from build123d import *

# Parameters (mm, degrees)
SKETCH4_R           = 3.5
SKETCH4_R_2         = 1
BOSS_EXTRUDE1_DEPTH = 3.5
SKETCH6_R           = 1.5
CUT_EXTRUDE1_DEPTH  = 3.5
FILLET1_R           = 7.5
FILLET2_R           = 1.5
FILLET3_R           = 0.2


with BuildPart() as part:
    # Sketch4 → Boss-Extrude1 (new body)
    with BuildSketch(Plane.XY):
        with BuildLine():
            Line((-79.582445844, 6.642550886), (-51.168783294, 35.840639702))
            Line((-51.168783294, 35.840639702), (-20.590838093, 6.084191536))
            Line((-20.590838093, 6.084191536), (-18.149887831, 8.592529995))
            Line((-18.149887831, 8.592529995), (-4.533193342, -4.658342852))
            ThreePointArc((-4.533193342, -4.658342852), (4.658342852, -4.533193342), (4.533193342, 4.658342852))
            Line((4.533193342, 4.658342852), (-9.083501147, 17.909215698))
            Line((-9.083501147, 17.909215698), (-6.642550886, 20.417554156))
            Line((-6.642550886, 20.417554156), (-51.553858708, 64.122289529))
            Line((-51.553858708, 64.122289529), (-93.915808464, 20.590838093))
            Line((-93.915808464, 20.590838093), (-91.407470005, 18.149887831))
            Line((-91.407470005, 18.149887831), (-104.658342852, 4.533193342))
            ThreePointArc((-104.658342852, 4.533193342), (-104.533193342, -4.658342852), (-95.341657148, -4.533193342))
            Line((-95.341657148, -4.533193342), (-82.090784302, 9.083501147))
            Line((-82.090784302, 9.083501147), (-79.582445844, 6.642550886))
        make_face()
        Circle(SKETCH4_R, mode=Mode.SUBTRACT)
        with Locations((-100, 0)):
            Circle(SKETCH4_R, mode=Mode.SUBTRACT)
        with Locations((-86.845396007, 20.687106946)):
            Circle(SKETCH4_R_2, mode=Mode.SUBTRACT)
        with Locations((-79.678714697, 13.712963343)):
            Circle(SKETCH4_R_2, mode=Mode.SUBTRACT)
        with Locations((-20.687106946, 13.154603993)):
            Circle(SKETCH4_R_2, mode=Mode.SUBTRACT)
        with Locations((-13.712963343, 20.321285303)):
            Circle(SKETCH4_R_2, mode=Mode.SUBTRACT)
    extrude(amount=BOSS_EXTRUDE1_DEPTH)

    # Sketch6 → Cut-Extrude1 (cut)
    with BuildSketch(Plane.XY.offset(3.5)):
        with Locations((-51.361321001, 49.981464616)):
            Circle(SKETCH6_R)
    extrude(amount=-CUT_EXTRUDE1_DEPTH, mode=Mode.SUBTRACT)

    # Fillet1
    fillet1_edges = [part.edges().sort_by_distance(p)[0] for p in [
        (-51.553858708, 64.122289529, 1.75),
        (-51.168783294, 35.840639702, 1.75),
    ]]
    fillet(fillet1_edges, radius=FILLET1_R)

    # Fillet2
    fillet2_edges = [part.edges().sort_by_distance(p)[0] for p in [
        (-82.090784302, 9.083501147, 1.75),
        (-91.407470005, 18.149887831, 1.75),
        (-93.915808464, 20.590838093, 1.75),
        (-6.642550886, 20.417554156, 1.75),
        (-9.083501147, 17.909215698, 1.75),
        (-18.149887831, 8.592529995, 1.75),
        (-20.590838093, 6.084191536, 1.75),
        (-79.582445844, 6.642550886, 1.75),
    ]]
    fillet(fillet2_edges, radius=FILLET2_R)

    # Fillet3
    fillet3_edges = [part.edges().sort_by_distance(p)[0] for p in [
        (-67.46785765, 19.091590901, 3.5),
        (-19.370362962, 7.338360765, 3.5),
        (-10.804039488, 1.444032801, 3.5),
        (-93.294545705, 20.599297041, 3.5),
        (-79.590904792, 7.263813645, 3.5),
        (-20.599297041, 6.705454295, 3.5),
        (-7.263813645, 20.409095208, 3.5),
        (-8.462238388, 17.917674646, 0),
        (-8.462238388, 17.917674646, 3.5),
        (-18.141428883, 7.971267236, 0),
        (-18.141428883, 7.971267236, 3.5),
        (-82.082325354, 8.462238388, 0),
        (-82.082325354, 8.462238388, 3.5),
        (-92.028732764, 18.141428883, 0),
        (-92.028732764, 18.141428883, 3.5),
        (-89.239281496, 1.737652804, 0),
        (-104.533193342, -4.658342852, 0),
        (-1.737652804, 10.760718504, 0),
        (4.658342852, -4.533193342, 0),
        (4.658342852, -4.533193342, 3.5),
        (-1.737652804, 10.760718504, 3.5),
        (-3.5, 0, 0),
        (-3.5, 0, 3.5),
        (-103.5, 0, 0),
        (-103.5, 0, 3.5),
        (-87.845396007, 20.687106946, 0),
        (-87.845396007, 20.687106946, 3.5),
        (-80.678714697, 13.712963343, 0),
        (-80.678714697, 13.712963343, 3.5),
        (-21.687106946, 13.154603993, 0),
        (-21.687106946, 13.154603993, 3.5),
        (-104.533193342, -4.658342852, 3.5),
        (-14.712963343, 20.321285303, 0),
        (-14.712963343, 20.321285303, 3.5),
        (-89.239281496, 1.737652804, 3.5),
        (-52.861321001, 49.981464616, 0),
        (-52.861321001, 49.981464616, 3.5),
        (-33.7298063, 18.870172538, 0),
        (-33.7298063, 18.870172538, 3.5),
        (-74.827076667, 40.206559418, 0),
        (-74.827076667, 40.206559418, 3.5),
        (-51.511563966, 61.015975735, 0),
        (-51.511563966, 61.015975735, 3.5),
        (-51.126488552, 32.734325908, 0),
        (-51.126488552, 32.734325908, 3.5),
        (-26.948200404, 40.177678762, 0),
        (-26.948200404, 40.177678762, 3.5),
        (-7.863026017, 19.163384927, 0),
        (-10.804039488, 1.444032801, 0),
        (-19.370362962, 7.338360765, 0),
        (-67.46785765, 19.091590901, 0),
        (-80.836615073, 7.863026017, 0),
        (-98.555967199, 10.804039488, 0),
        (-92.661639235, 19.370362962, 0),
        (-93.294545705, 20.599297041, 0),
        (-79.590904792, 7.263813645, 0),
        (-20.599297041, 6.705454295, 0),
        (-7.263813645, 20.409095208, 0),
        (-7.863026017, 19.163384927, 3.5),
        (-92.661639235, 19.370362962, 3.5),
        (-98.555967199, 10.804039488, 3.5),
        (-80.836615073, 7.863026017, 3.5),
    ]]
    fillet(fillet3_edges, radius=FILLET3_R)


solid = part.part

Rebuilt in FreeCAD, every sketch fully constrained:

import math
import FreeCAD as App
import Part
import Sketcher


def edges_at(feature, points):
    """Names of the edges that pass closest to the given points."""
    edges = feature.Shape.Edges
    near = lambda p: min(range(len(edges)), key=lambda i: edges[i].distToShape(Part.Vertex(*p))[0])
    return sorted({f"Edge{near(p) + 1}" for p in points})

doc = App.newDocument("Part")
body = doc.addObject("PartDesign::Body", "Body")

sketch1 = body.newObject("Sketcher::SketchObject", "Sketch")
sketch1.AttachmentSupport = (doc.getObject("XY_Plane"), [""])
sketch1.MapMode = "FlatFace"
sketch1.addGeometry([
    Part.LineSegment(App.Vector(-79.6, 6.6, 0), App.Vector(-51.2, 35.8, 0)),
    Part.LineSegment(App.Vector(-51.2, 35.8, 0), App.Vector(-20.6, 6.1, 0)),
    Part.LineSegment(App.Vector(-20.6, 6.1, 0), App.Vector(-18.1, 8.6, 0)),
    Part.LineSegment(App.Vector(-18.1, 8.6, 0), App.Vector(-4.5, -4.7, 0)),
    Part.ArcOfCircle(Part.Circle(App.Vector(0, 0, 0), App.Vector(0, 0, 1), 6.5), math.radians(-134), math.radians(46)),
    Part.LineSegment(App.Vector(4.5, 4.7, 0), App.Vector(-9.1, 17.9, 0)),
    Part.LineSegment(App.Vector(-9.1, 17.9, 0), App.Vector(-6.6, 20.4, 0)),
    Part.LineSegment(App.Vector(-6.6, 20.4, 0), App.Vector(-51.6, 64.1, 0)),
    Part.LineSegment(App.Vector(-51.6, 64.1, 0), App.Vector(-93.9, 20.6, 0)),
    Part.LineSegment(App.Vector(-93.9, 20.6, 0), App.Vector(-91.4, 18.1, 0)),
    Part.LineSegment(App.Vector(-91.4, 18.1, 0), App.Vector(-104.7, 4.5, 0)),
    Part.ArcOfCircle(Part.Circle(App.Vector(-100, 0, 0), App.Vector(0, 0, 1), 6.5), math.radians(136), math.radians(316)),
    Part.LineSegment(App.Vector(-95.3, -4.5, 0), App.Vector(-82.1, 9.1, 0)),
    Part.LineSegment(App.Vector(-82.1, 9.1, 0), App.Vector(-79.6, 6.6, 0)),
    Part.Circle(App.Vector(-100, 0, 0), App.Vector(0, 0, 1), 3.5),
    Part.Circle(App.Vector(0, 0, 0), App.Vector(0, 0, 1), 3.5),
    Part.Circle(App.Vector(-79.7, 13.7, 0), App.Vector(0, 0, 1), 1),
    Part.Circle(App.Vector(-86.8, 20.7, 0), App.Vector(0, 0, 1), 1),
    Part.Circle(App.Vector(-20.7, 13.2, 0), App.Vector(0, 0, 1), 1),
    Part.Circle(App.Vector(-13.7, 20.3, 0), App.Vector(0, 0, 1), 1),
], False)
sketch1.addConstraint([
    Sketcher.Constraint("Coincident", 0, 2, 1, 1),
    Sketcher.Constraint("Coincident", 1, 2, 2, 1),
    Sketcher.Constraint("Coincident", 2, 2, 3, 1),
    Sketcher.Constraint("Tangent", 3, 2, 4, 1),
    Sketcher.Constraint("Tangent", 4, 2, 5, 1),
    Sketcher.Constraint("Coincident", 5, 2, 6, 1),
    Sketcher.Constraint("Coincident", 6, 2, 7, 1),
    Sketcher.Constraint("Coincident", 7, 2, 8, 1),
    Sketcher.Constraint("Coincident", 8, 2, 9, 1),
    Sketcher.Constraint("Coincident", 9, 2, 10, 1),
    Sketcher.Constraint("Tangent", 10, 2, 11, 1),
    Sketcher.Constraint("Tangent", 11, 2, 12, 1),
    Sketcher.Constraint("Coincident", 12, 2, 13, 1),
    Sketcher.Constraint("Coincident", 13, 2, 0, 1),
    Sketcher.Constraint("Coincident", 4, 3, -1, 1),
    Sketcher.Constraint("Coincident", 15, 3, -1, 1),
    Sketcher.Constraint("Coincident", 14, 3, 11, 3),
    Sketcher.Constraint("Equal", 4, 11),
    Sketcher.Constraint("Equal", 14, 15),
    Sketcher.Constraint("Equal", 16, 17),
    Sketcher.Constraint("Equal", 17, 18),
    Sketcher.Constraint("Equal", 18, 19),
    Sketcher.Constraint("PointOnObject", 11, 3, -1),
    Sketcher.Constraint("Perpendicular", 0, 1),
    Sketcher.Constraint("Perpendicular", 1, 2),
    Sketcher.Constraint("Perpendicular", 2, 3),
    Sketcher.Constraint("Parallel", 3, 5),
    Sketcher.Constraint("Perpendicular", 5, 6),
    Sketcher.Constraint("Perpendicular", 6, 7),
    Sketcher.Constraint("Perpendicular", 7, 8),
    Sketcher.Constraint("Perpendicular", 8, 9),
    Sketcher.Constraint("Perpendicular", 9, 10),
    Sketcher.Constraint("Parallel", 10, 12),
    Sketcher.Constraint("Perpendicular", 12, 13),
    Sketcher.Constraint("Equal", 3, 5),
    Sketcher.Constraint("Equal", 2, 6),
    Sketcher.Constraint("Equal", 6, 9),
    Sketcher.Constraint("Equal", 5, 10),
    Sketcher.Constraint("Equal", 10, 12),
    Sketcher.Constraint("Equal", 9, 13),
    Sketcher.Constraint("Diameter", 14, 7.0),
    Sketcher.Constraint("Diameter", 16, 2.0),
    Sketcher.Constraint("Radius", 4, 6.5),
    Sketcher.Constraint("Distance", 3, 19.0),
    Sketcher.Constraint("DistanceX", 11, 3, -1, 1, 100.0),
    Sketcher.Constraint("Distance", 2, 3.5),
    Sketcher.Constraint("DistanceX", 5, 2, -1, 1, 9.083501),
    Sketcher.Constraint("DistanceX", 17, 3, 16, 3, 7.166681),
    Sketcher.Constraint("DistanceY", 18, 3, 16, 3, 0.558359),
    Sketcher.Constraint("DistanceX", 17, 3, 18, 3, 66.158289),
    Sketcher.Constraint("DistanceY", 18, 3, 19, 3, 7.166681),
    Sketcher.Constraint("DistanceX", 16, 3, 19, 3, 65.965751),
    Sketcher.Constraint("DistanceY", 19, 3, 17, 3, 0.365822),
    Sketcher.Constraint("DistanceX", 16, 3, 0, 2, 28.509931),
    Sketcher.Constraint("DistanceY", 5, 2, 19, 3, 2.41207),
])
pad1 = body.newObject("PartDesign::Pad", "Pad")
pad1.Profile = sketch1
pad1.Length = 3.5

sketch2 = body.newObject("Sketcher::SketchObject", "Sketch001")
sketch2.AttachmentSupport = (doc.getObject("XY_Plane"), [""])
sketch2.MapMode = "FlatFace"
sketch2.AttachmentOffset = App.Placement(App.Vector(0, 0, 3.5), App.Rotation())
sketch2.addGeometry(Part.Circle(App.Vector(-51.4, 50, 0), App.Vector(0, 0, 1), 1.5), False)
sketch2.addConstraint([
    Sketcher.Constraint("Diameter", 0, 3.0),
    Sketcher.Constraint("DistanceX", 0, 3, -1, 1, 51.361321),
    Sketcher.Constraint("DistanceY", -1, 1, 0, 3, 49.981465),
])
pocket1 = body.newObject("PartDesign::Pocket", "Pocket")
pocket1.Profile = sketch2
pocket1.Length = 3.5
doc.recompute()

fillet = body.newObject("PartDesign::Fillet", "Fillet")
fillet.Base = (pocket1, edges_at(pocket1, [(-51.554, 64.122, 1.75), (-51.169, 35.841, 1.75)]))
fillet.Radius = 7.5
doc.recompute()

fillet2 = body.newObject("PartDesign::Fillet", "Fillet001")
fillet2.Base = (fillet, edges_at(fillet, [
    (-82.091, 9.084, 1.75),
    (-91.407, 18.15, 1.75),
    (-93.916, 20.591, 1.75),
    (-6.643, 20.418, 1.75),
    (-9.084, 17.909, 1.75),
    (-18.15, 8.593, 1.75),
    (-20.591, 6.084, 1.75),
    (-79.582, 6.643, 1.75),
]))
fillet2.Radius = 1.5
doc.recompute()

fillet3 = body.newObject("PartDesign::Fillet", "Fillet002")
fillet3.Base = (fillet2, edges_at(fillet2, [
    (-67.468, 19.092, 3.5),
    (-19.37, 7.338, 3.5),
    (-10.804, 1.444, 3.5),
    (-93.295, 20.599, 3.5),
    (-79.591, 7.264, 3.5),
    (-20.599, 6.705, 3.5),
    (-7.264, 20.409, 3.5),
    (-8.462, 17.918, 0),
    (-8.462, 17.918, 3.5),
    (-18.141, 7.971, 0),
    (-18.141, 7.971, 3.5),
    (-82.082, 8.462, 0),
    (-82.082, 8.462, 3.5),
    (-92.029, 18.141, 0),
    (-92.029, 18.141, 3.5),
    (-89.239, 1.738, 0),
    (-104.533, -4.658, 0),
    (-1.738, 10.761, 0),
    (4.658, -4.533, 0),
    (4.658, -4.533, 3.5),
    (-1.738, 10.761, 3.5),
    (-3.5, 0, 0),
    (-3.5, 0, 3.5),
    (-103.5, 0, 0),
    (-103.5, 0, 3.5),
    (-87.845, 20.687, 0),
    (-87.845, 20.687, 3.5),
    (-80.679, 13.713, 0),
    (-80.679, 13.713, 3.5),
    (-21.687, 13.155, 0),
    (-21.687, 13.155, 3.5),
    (-104.533, -4.658, 3.5),
    (-14.713, 20.321, 0),
    (-14.713, 20.321, 3.5),
    (-89.239, 1.738, 3.5),
    (-52.861, 49.981, 0),
    (-52.861, 49.981, 3.5),
    (-33.73, 18.87, 0),
    (-33.73, 18.87, 3.5),
    (-74.827, 40.207, 0),
    (-74.827, 40.207, 3.5),
    (-51.512, 61.016, 0),
    (-51.512, 61.016, 3.5),
    (-51.126, 32.734, 0),
    (-51.126, 32.734, 3.5),
    (-26.948, 40.178, 0),
    (-26.948, 40.178, 3.5),
    (-7.863, 19.163, 0),
    (-10.804, 1.444, 0),
    (-19.37, 7.338, 0),
    (-67.468, 19.092, 0),
    (-80.837, 7.863, 0),
    (-98.556, 10.804, 0),
    (-92.662, 19.37, 0),
    (-93.295, 20.599, 0),
    (-79.591, 7.264, 0),
    (-20.599, 6.705, 0),
    (-7.264, 20.409, 0),
    (-7.863, 19.163, 3.5),
    (-92.662, 19.37, 3.5),
    (-98.556, 10.804, 3.5),
    (-80.837, 7.863, 3.5),
]))
fillet3.Radius = 0.2

doc.recompute()
